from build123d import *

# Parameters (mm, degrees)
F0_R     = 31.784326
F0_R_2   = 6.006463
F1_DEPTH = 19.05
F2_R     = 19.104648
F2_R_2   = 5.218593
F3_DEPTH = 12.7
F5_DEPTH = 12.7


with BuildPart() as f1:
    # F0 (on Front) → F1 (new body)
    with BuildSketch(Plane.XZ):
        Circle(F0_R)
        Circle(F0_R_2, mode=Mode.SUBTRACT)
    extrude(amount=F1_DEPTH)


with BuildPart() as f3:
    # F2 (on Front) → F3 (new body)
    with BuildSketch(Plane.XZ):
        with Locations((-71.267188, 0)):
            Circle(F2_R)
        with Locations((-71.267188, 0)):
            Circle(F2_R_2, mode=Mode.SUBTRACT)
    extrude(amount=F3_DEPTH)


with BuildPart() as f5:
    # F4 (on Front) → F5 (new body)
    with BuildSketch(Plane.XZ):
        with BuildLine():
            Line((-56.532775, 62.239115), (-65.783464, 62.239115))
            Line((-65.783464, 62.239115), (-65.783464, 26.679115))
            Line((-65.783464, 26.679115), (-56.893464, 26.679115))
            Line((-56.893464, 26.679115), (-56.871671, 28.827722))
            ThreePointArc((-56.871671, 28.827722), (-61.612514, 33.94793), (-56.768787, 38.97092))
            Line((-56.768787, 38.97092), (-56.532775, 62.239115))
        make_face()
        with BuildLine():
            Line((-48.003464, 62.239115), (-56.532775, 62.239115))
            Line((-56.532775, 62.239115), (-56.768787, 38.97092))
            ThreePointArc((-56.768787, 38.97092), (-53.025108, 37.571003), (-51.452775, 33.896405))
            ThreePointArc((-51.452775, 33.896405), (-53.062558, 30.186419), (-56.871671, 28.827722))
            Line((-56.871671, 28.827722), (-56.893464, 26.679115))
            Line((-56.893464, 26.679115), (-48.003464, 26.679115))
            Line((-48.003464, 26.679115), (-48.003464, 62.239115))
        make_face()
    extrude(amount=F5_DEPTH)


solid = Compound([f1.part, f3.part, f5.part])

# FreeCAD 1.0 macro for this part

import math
import FreeCAD as App
import Part
import Sketcher
Q = App.Units.Quantity

doc = App.newDocument("Part")
body = doc.addObject("PartDesign::Body", "Body")

# Sketch on XZ plane
sketch1 = doc.addObject("Sketcher::SketchObject", "Sketch")
body.addObject(sketch1)
sketch1.AttachmentSupport = (doc.XZ_Plane, [""])
sketch1.MapMode = "FlatFace"
sketch1.addGeometry(Part.Circle(App.Vector(0, 0, 0), App.Vector(0, 0, 1), 32), False)
sketch1.addGeometry(Part.Circle(App.Vector(0, 0, 0), App.Vector(0, 0, 1), 6), False)
sketch1.addConstraint(Sketcher.Constraint("Coincident", 0, 3, -1, 1))
sketch1.addConstraint(Sketcher.Constraint("Coincident", 1, 3, -1, 1))
sketch1.addConstraint(Sketcher.Constraint("Diameter", 0, Q("63.568652 mm")))
sketch1.addConstraint(Sketcher.Constraint("Diameter", 1, Q("12.012926 mm")))
pad1 = doc.addObject("PartDesign::Pad", "Pad")
body.addObject(pad1)
pad1.Profile = sketch1
pad1.Length = Q("0.75 in")
body2 = doc.addObject("PartDesign::Body", "Body001")

# Sketch on XZ plane
sketch2 = doc.addObject("Sketcher::SketchObject", "Sketch001")
body2.addObject(sketch2)
sketch2.AttachmentSupport = (doc.getObject("XZ_Plane001"), [""])
sketch2.MapMode = "FlatFace"
sketch2.addGeometry(Part.Circle(App.Vector(-71, 0, 0), App.Vector(0, 0, 1), 19), False)
sketch2.addGeometry(Part.Circle(App.Vector(-71, 0, 0), App.Vector(0, 0, 1), 5), False)
sketch2.addConstraint(Sketcher.Constraint("Coincident", 1, 3, 0, 3))
sketch2.addConstraint(Sketcher.Constraint("PointOnObject", 0, 3, -1))
sketch2.addConstraint(Sketcher.Constraint("Diameter", 0, Q("38.209296 mm")))
sketch2.addConstraint(Sketcher.Constraint("Diameter", 1, Q("10.437186 mm")))
sketch2.addConstraint(Sketcher.Constraint("DistanceX", 0, 3, -1, 1, Q("71.267188 mm")))
pad2 = doc.addObject("PartDesign::Pad", "Pad001")
body2.addObject(pad2)
pad2.Profile = sketch2
pad2.Length = Q("0.5 in")
body3 = doc.addObject("PartDesign::Body", "Body002")

# Sketch on XZ plane
sketch3 = doc.addObject("Sketcher::SketchObject", "Sketch002")
body3.addObject(sketch3)
sketch3.AttachmentSupport = (doc.getObject("XZ_Plane002"), [""])
sketch3.MapMode = "FlatFace"
sketch3.addGeometry(Part.LineSegment(App.Vector(-66, 62, 0), App.Vector(-66, 27, 0)), False)
sketch3.addGeometry(Part.LineSegment(App.Vector(-66, 27, 0), App.Vector(-48, 27, 0)), False)
sketch3.addGeometry(Part.LineSegment(App.Vector(-48, 27, 0), App.Vector(-48, 62, 0)), False)
sketch3.addGeometry(Part.LineSegment(App.Vector(-48, 62, 0), App.Vector(-66, 62, 0)), False)
sketch3.addGeometry(Part.ArcOfCircle(Part.Circle(App.Vector(-57, 34, 0), App.Vector(0, 0, 1), 5), math.radians(93), math.radians(266)), False)
sketch3.addGeometry(Part.ArcOfCircle(Part.Circle(App.Vector(-57, 34, 0), App.Vector(0, 0, 1), 5), math.radians(0), math.radians(93)), False)
sketch3.addGeometry(Part.ArcOfCircle(Part.Circle(App.Vector(-57, 34, 0), App.Vector(0, 0, 1), 5), math.radians(-94), math.radians(0)), False)
sketch3.addConstraint(Sketcher.Constraint("Coincident", 0, 2, 1, 1))
sketch3.addConstraint(Sketcher.Constraint("Coincident", 1, 2, 2, 1))
sketch3.addConstraint(Sketcher.Constraint("Coincident", 2, 2, 3, 1))
sketch3.addConstraint(Sketcher.Constraint("Coincident", 3, 2, 0, 1))
sketch3.addConstraint(Sketcher.Constraint("Tangent", 4, 1, 5, 2))
sketch3.addConstraint(Sketcher.Constraint("Tangent", 5, 1, 6, 2))
sketch3.addConstraint(Sketcher.Constraint("Tangent", 6, 1, 4, 2))
sketch3.addConstraint(Sketcher.Constraint("Vertical", 0))
sketch3.addConstraint(Sketcher.Constraint("Horizontal", 1))
sketch3.addConstraint(Sketcher.Constraint("Vertical", 2))
sketch3.addConstraint(Sketcher.Constraint("Horizontal", 3))
sketch3.addConstraint(Sketcher.Constraint("Horizontal", 6, 3, 5, 1))
sketch3.addConstraint(Sketcher.Constraint("Radius", 4, Q("0.2 in")))
sketch3.addConstraint(Sketcher.Constraint("DistanceX", 1, 1, 1, 2, Q("0.7 in")))
sketch3.addConstraint(Sketcher.Constraint("DistanceY", 0, 2, 0, 1, Q("1.4 in")))
sketch3.addConstraint(Sketcher.Constraint("DistanceX", 4, 3, -1, 1, Q("2.2256998 in")))
sketch3.addConstraint(Sketcher.Constraint("DistanceX", 0, 2, -1, 1, Q("2.5899002 in")))
sketch3.addConstraint(Sketcher.Constraint("DistanceY", -1, 1, 4, 1, Q("38.97092 mm")))
sketch3.addConstraint(Sketcher.Constraint("DistanceX", 6, 1, -1, 1, Q("56.871671 mm")))
sketch3.addConstraint(Sketcher.Constraint("DistanceY", -1, 1, 6, 1, Q("28.827722 mm")))
sketch3.addConstraint(Sketcher.Constraint("DistanceY", 0, 2, 5, 3, Q("7.217289 mm")))
pad3 = doc.addObject("PartDesign::Pad", "Pad002")
body3.addObject(pad3)
pad3.Profile = sketch3
pad3.Length = Q("0.5 in")

doc.recompute()
